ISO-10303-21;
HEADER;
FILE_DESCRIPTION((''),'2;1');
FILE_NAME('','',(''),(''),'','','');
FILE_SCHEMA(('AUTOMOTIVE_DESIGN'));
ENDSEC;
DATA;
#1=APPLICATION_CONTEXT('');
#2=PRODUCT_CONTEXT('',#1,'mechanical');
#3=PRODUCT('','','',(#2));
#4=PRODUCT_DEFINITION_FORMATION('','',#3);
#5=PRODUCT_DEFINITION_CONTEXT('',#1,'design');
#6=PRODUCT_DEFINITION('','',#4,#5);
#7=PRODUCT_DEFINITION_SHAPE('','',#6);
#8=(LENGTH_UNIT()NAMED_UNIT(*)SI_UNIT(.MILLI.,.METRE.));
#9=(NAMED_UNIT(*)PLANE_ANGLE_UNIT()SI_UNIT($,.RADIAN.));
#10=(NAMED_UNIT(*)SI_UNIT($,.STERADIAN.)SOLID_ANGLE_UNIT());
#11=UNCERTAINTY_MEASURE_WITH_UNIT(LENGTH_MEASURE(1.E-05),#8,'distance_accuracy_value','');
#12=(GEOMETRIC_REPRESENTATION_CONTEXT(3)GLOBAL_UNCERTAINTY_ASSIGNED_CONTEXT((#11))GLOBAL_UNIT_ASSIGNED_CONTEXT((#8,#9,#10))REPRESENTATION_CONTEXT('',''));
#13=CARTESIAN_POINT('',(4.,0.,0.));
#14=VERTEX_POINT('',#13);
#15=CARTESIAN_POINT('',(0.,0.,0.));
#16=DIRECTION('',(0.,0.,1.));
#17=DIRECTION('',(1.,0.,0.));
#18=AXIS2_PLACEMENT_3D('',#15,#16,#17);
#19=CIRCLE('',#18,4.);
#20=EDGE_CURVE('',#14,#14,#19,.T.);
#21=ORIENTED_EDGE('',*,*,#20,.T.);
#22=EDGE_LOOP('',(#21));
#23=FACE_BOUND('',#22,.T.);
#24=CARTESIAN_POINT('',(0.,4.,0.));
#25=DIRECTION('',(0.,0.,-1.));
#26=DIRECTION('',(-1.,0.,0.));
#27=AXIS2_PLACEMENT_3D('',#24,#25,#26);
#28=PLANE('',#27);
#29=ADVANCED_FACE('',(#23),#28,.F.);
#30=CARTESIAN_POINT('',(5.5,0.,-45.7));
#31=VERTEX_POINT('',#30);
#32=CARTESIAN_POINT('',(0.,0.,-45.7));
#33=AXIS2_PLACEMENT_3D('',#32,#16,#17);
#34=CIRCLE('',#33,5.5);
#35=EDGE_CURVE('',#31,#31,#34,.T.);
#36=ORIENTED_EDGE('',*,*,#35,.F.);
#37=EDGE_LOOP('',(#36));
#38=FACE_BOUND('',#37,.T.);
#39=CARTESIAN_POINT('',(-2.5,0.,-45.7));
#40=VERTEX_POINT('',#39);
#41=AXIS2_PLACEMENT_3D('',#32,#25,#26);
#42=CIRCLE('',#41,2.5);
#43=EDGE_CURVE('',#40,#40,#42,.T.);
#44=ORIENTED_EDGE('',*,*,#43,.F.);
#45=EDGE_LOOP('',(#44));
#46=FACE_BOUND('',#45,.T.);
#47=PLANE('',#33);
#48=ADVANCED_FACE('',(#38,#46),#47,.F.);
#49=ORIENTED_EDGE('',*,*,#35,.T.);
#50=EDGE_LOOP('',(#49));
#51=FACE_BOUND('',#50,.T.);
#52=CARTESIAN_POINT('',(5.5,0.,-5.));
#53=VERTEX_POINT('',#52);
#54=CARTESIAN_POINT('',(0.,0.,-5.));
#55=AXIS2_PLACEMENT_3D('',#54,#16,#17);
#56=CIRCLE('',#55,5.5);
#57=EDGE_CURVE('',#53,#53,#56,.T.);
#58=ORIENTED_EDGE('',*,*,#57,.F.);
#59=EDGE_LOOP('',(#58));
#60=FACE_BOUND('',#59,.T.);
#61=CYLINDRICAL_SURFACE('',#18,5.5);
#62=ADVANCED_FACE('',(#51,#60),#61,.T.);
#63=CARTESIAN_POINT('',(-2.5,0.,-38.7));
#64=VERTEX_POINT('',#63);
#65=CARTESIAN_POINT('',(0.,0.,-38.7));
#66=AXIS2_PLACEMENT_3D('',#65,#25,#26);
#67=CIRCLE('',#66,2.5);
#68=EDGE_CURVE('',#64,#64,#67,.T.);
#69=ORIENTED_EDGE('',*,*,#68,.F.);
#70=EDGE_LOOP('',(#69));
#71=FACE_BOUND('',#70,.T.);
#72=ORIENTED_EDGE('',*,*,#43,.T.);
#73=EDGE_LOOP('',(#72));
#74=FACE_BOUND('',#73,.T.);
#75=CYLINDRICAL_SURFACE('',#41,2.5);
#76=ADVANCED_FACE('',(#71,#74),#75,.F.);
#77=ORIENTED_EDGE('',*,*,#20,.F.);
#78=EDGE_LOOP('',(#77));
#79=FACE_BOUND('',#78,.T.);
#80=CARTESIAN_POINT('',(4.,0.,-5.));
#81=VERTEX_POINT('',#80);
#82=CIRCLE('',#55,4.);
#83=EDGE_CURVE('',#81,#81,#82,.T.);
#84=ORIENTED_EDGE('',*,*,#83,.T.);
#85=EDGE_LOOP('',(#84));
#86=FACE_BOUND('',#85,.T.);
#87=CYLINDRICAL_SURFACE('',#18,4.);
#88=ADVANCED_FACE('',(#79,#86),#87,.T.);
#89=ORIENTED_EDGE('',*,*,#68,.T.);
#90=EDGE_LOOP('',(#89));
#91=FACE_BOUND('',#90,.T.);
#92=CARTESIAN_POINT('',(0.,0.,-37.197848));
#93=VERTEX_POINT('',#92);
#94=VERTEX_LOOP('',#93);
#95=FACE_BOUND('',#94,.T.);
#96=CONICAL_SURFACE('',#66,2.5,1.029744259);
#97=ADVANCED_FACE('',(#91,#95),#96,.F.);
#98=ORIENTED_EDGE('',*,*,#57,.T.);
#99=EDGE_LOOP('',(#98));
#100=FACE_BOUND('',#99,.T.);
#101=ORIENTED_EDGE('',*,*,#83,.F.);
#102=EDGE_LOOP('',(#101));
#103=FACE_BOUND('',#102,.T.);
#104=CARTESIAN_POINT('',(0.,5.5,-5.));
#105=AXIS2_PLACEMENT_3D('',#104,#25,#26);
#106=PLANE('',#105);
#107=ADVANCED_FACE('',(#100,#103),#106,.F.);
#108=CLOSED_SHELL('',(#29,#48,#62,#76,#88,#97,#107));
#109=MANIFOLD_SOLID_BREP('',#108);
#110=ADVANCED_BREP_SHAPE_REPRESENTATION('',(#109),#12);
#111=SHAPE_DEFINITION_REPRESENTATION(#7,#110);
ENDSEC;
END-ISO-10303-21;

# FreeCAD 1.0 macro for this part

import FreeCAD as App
import Part
import Sketcher
from FreeCAD import Vector

doc = App.newDocument("Part")
body = doc.addObject("PartDesign::Body", "Body")

# Sketch on YZ plane
sketch1 = body.newObject("Sketcher::SketchObject", "Sketch")
sketch1.AttachmentSupport = (doc.getObject("YZ_Plane"), [""])
sketch1.MapMode = "FlatFace"
sketch1.addGeometry([
    Part.LineSegment(Vector(0, 0, 0), Vector(0, -45.7, 0)),  # 0
    Part.LineSegment(Vector(0, -45.7, 0), Vector(5.5, -45.7, 0)),  # 1
    Part.LineSegment(Vector(5.5, -45.7, 0), Vector(5.5, -5, 0)),  # 2
    Part.LineSegment(Vector(5.5, -5, 0), Vector(4, -5, 0)),  # 3
    Part.LineSegment(Vector(4, -5, 0), Vector(4, 0, 0)),  # 4
    Part.LineSegment(Vector(4, 0, 0), Vector(0, 0, 0)),  # 5
], False)
sketch1.addConstraint([
    Sketcher.Constraint("Coincident", 0, 2, 1, 1),
    Sketcher.Constraint("Coincident", 1, 2, 2, 1),
    Sketcher.Constraint("Coincident", 2, 2, 3, 1),
    Sketcher.Constraint("Coincident", 3, 2, 4, 1),
    Sketcher.Constraint("Coincident", 4, 2, 5, 1),
    Sketcher.Constraint("Coincident", 5, 2, 0, 1),
    Sketcher.Constraint("Vertical", 0),
    Sketcher.Constraint("Horizontal", 1),
    Sketcher.Constraint("Vertical", 2),
    Sketcher.Constraint("Horizontal", 3),
    Sketcher.Constraint("Vertical", 4),
    Sketcher.Constraint("Horizontal", 5),
    Sketcher.Constraint("Coincident", 5, 2, -1, 1),
    Sketcher.Constraint("DistanceX", 5, 2, 5, 1, 4.0),
    Sketcher.Constraint("DistanceY", 4, 1, 4, 2, 5.0),
    Sketcher.Constraint("DistanceX", 1, 1, 1, 2, 5.5),
    Sketcher.Constraint("DistanceY", 0, 2, 0, 1, 45.7),
])
revolution = body.newObject("PartDesign::Revolution", "Revolution")
revolution.Profile = sketch1
revolution.ReferenceAxis = (sketch1, ["V_Axis"])
revolution.Angle = 360

# Sketch on XY plane
sketch2 = body.newObject("Sketcher::SketchObject", "Sketch001")
sketch2.AttachmentSupport = (doc.getObject("XY_Plane"), [""])
sketch2.MapMode = "FlatFace"
sketch2.AttachmentOffset = App.Placement(Vector(0, 0, -45.7), App.Rotation())
sketch2.addGeometry(Part.Circle(Vector(0, 0, 0), Vector(0, 0, 1), 2.5), False)
sketch2.addConstraint([
    Sketcher.Constraint("Coincident", 0, 3, -1, 1),
    Sketcher.Constraint("Diameter", 0, 5.0),
])
doc.recompute()
hole = body.newObject("PartDesign::Hole", "Hole")
hole.Profile = sketch2
hole.ThreadType = "None"
hole.Diameter = 5
hole.DepthType = "Dimension"
hole.Depth = 7
hole.DrillPoint = "Angled"
hole.DrillPointAngle = 118
hole.Reversed = True

doc.recompute()
